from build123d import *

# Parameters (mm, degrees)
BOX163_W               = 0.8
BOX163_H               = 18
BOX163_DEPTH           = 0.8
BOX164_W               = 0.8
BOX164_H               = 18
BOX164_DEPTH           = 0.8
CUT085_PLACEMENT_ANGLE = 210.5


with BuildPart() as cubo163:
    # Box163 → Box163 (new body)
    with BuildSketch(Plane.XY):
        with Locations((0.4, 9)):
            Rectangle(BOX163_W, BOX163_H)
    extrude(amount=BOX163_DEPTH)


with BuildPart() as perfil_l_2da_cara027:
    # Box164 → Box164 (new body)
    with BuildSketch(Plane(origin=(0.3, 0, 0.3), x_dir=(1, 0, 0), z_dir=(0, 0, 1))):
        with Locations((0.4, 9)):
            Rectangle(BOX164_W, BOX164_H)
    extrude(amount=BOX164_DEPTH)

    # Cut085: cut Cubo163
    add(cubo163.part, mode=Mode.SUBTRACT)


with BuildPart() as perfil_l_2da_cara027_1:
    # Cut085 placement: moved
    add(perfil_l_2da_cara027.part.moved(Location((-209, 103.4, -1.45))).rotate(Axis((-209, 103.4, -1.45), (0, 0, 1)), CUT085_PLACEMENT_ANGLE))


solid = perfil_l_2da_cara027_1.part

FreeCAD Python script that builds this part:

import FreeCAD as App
import Part
import Sketcher

V = App.Vector


def add_polygon(sketch, points):
    """Adds a closed chain of lines whose ends are joined by coincident constraints."""
    first, n = sketch.GeometryCount, len(points)
    for a, b in zip(points, points[1:] + points[:1]):
        sketch.addGeometry(Part.LineSegment(App.Vector(*a, 0), App.Vector(*b, 0)), False)
    for i in range(n):
        sketch.addConstraint(Sketcher.Constraint("Coincident", first + i, 2, first + (i + 1) % n, 1))

doc = App.newDocument("Part")
body = doc.addObject("PartDesign::Body", "Body")

# Sketch on XY plane
sketch1 = body.newObject("Sketcher::SketchObject", "Sketch")
sketch1.AttachmentSupport = (doc.getObject("XY_Plane"), [""])
sketch1.MapMode = "FlatFace"
add_polygon(sketch1, [(0, 18), (0, 0), (0.8, 0), (0.8, 18)])  # lines 0-3
sketch1.addConstraint(Sketcher.Constraint("Vertical", 0))
sketch1.addConstraint(Sketcher.Constraint("Horizontal", 1))
sketch1.addConstraint(Sketcher.Constraint("Vertical", 2))
sketch1.addConstraint(Sketcher.Constraint("Horizontal", 3))
sketch1.addConstraint(Sketcher.Constraint("Coincident", 0, 2, -1, 1))
sketch1.addConstraint(Sketcher.Constraint("DistanceY", 0, 2, 0, 1, 18.0))
sketch1.addConstraint(Sketcher.Constraint("DistanceX", 1, 1, 1, 2, 0.8))
pad1 = body.newObject("PartDesign::Pad", "Pad")
pad1.Profile = sketch1
pad1.Length = 0.8
body2 = doc.addObject("PartDesign::Body", "Body001")

# Sketch on XY plane
sketch2 = body2.newObject("Sketcher::SketchObject", "Sketch001")
sketch2.AttachmentSupport = (doc.getObject("XY_Plane001"), [""])
sketch2.MapMode = "FlatFace"
sketch2.AttachmentOffset = App.Placement(V(0, 0, 0.3), App.Rotation())
add_polygon(sketch2, [(0.3, 18), (0.3, 0), (1.1, 0), (1.1, 18)])  # lines 0-3
sketch2.addConstraint(Sketcher.Constraint("Vertical", 0))
sketch2.addConstraint(Sketcher.Constraint("Horizontal", 1))
sketch2.addConstraint(Sketcher.Constraint("Vertical", 2))
sketch2.addConstraint(Sketcher.Constraint("Horizontal", 3))
sketch2.addConstraint(Sketcher.Constraint("PointOnObject", 0, 2, -1))
sketch2.addConstraint(Sketcher.Constraint("DistanceY", 0, 2, 0, 1, 18.0))
sketch2.addConstraint(Sketcher.Constraint("DistanceX", 1, 1, 1, 2, 0.8))
sketch2.addConstraint(Sketcher.Constraint("DistanceX", -1, 1, 0, 2, 0.3))
pad2 = body2.newObject("PartDesign::Pad", "Pad001")
pad2.Profile = sketch2
pad2.Length = 0.8
doc.recompute()

boolean = body2.newObject("PartDesign::Boolean", "Boolean")
boolean.Type = "Cut"
boolean.addObjects([body])
body3 = doc.addObject("PartDesign::Body", "Body002")
doc.recompute()

body2.Placement = App.Placement(V(-209, 103.4, -1.45), App.Rotation(V(0, 0, 1), 210.5))
boolean2 = body3.newObject("PartDesign::Boolean", "Boolean001")
boolean2.Type = "Fuse"
boolean2.addObjects([body2])

doc.recompute()
